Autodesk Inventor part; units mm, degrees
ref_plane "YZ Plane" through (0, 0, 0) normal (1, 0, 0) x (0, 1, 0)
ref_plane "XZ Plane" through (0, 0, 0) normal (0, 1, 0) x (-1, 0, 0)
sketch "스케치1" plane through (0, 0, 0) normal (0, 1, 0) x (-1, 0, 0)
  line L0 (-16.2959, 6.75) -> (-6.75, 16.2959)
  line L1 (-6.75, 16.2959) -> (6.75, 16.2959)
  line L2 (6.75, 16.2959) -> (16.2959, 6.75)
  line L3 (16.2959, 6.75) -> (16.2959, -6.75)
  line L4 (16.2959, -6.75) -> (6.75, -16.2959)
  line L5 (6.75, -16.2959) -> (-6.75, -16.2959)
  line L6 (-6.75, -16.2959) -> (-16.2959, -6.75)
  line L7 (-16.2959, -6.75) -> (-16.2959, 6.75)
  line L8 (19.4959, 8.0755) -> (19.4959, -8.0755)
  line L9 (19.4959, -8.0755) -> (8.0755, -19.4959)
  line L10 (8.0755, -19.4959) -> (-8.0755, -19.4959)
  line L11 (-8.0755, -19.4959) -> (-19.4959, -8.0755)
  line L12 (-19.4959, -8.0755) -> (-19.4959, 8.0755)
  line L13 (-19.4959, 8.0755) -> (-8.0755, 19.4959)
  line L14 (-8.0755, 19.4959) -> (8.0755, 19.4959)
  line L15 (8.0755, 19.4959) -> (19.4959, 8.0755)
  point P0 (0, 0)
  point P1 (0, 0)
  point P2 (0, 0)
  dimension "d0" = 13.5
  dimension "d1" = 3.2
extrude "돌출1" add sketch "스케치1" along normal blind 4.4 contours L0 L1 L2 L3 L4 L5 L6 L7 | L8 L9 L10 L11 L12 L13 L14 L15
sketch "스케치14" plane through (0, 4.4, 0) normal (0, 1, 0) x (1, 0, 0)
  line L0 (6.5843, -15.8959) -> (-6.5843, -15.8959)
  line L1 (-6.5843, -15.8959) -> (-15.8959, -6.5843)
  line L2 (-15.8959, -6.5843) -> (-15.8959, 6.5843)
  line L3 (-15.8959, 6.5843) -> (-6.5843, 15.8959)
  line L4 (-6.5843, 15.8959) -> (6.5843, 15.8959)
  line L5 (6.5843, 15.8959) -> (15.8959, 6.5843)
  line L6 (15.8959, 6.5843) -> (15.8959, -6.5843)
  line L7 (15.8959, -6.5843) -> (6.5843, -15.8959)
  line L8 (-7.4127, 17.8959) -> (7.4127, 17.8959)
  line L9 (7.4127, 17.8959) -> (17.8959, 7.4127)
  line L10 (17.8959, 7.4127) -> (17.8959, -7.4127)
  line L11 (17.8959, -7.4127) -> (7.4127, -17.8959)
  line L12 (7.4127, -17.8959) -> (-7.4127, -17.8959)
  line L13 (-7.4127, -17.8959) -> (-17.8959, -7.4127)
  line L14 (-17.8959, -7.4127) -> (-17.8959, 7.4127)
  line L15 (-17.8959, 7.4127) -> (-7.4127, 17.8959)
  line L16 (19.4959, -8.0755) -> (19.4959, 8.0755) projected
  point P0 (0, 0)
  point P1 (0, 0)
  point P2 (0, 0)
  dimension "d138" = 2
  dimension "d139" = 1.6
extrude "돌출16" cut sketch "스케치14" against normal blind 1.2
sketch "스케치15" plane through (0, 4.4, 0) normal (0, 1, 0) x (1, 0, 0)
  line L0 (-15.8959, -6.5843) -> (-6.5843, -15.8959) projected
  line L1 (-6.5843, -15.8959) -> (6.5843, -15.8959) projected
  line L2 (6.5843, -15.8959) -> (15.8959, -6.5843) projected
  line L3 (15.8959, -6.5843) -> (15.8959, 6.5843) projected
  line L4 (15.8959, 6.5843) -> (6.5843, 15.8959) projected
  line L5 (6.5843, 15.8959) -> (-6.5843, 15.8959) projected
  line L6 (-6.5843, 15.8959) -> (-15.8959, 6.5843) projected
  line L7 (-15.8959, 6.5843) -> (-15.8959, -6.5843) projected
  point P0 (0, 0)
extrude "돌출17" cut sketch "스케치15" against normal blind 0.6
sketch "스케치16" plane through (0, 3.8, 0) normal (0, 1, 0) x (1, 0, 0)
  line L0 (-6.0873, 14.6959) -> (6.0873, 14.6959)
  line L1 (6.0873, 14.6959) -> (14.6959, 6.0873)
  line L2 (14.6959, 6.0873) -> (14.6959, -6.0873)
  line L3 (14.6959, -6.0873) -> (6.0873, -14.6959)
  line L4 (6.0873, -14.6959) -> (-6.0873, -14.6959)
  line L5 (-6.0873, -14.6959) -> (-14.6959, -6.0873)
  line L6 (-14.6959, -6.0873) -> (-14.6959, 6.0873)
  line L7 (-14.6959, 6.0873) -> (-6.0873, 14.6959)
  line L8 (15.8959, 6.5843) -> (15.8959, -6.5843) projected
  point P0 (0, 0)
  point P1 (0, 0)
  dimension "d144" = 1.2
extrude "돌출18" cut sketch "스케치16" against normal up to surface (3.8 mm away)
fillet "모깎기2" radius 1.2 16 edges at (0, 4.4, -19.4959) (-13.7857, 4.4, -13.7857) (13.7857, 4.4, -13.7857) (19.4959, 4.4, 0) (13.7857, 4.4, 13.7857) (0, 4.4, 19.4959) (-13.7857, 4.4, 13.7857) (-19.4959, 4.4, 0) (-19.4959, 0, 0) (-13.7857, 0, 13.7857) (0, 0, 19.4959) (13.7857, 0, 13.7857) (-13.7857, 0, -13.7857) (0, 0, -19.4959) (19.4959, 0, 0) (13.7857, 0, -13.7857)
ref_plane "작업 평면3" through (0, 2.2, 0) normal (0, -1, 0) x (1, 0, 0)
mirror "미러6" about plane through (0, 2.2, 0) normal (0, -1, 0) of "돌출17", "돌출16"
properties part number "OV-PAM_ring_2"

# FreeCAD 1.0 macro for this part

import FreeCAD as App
import Part
import Sketcher
from FreeCAD import Vector


def edges_at(feature, points):
    """Names of the edges that pass closest to the given points."""
    edges = feature.Shape.Edges
    near = lambda p: min(range(len(edges)), key=lambda i: edges[i].distToShape(Part.Vertex(*p))[0])
    return sorted({f"Edge{near(p) + 1}" for p in points})


def add_polygon(sketch, points):
    """Adds a closed chain of lines whose ends are joined by coincident constraints."""
    first, n = sketch.GeometryCount, len(points)
    for a, b in zip(points, points[1:] + points[:1]):
        sketch.addGeometry(Part.LineSegment(App.Vector(*a, 0), App.Vector(*b, 0)), False)
    for i in range(n):
        sketch.addConstraint(Sketcher.Constraint("Coincident", first + i, 2, first + (i + 1) % n, 1))

doc = App.newDocument("Part")
params = doc.addObject("Spreadsheet::Sheet", "Params")
for row, (alias, value) in enumerate([
    ("pad1_length", "4.4 mm"),
    ("pocket1_length", "1.2 mm"),
    ("pocket2_length", "0.6 mm"),
    ("pocket3_length", "3.8 mm"),
    ("fillet_radius", "1.2 mm"),
], start=1):
    params.set(f"A{row}", alias)
    params.set(f"B{row}", "=" + value)
    params.setAlias(f"B{row}", alias)

body = doc.addObject("PartDesign::Body", "Body")

# Sketch on XZ plane
sketch1 = doc.addObject("Sketcher::SketchObject", "Sketch")
body.addObject(sketch1)
sketch1.AttachmentSupport = (doc.XZ_Plane, [""])
sketch1.MapMode = "FlatFace"
add_polygon(sketch1, [(-19.4959, -8.0755), (-19.4959, 8.0755), (-8.0755, 19.4959), (8.0755, 19.4959), (19.4959, 8.0755), (19.4959, -8.0755), (8.0755, -19.4959), (-8.0755, -19.4959)])  # lines 0-7
sketch1.addConstraint([
    Sketcher.Constraint("Vertical", 0),
    Sketcher.Constraint("Horizontal", 2),
    Sketcher.Constraint("Vertical", 4),
    Sketcher.Constraint("Horizontal", 6),
    Sketcher.Constraint("Symmetric", 0, 2, 4, 2, -1, 1),
    Sketcher.Constraint("Symmetric", 1, 2, 5, 2, -1, 1),
    Sketcher.Constraint("Perpendicular", 1, 3),
    Sketcher.Constraint("Perpendicular", 5, 7),
    Sketcher.Constraint("Horizontal", 0, 2, 3, 2),
    Sketcher.Constraint("Horizontal", 4, 2, 7, 2),
    Sketcher.Constraint("Vertical", 2, 2, 5, 2),
    Sketcher.Constraint("Equal", 6, 0),
    Sketcher.Constraint("DistanceX", 2, 1, 2, 2, 16.151),
    Sketcher.Constraint("Distance", 1, 16.151),
])
pad1 = doc.addObject("PartDesign::Pad", "Pad")
body.addObject(pad1)
pad1.Profile = sketch1
pad1.setExpression("Length", "Params.pad1_length")
pad1.Reversed = True

# Sketch on XZ plane
sketch2 = doc.addObject("Sketcher::SketchObject", "Sketch001")
body.addObject(sketch2)
sketch2.AttachmentSupport = (doc.XZ_Plane, [""])
sketch2.MapMode = "FlatFace"
sketch2.AttachmentOffset = App.Placement(Vector(0, 0, -4.4), App.Rotation())
add_polygon(sketch2, [(7.4127, -17.8959), (-7.4127, -17.8959), (-17.8959, -7.4127), (-17.8959, 7.4127), (-7.4127, 17.8959), (7.4127, 17.8959), (17.8959, 7.4127), (17.8959, -7.4127)])  # lines 0-7
add_polygon(sketch2, [(15.8959, 6.5843), (6.5843, 15.8959), (-6.5843, 15.8959), (-15.8959, 6.5843), (-15.8959, -6.5843), (-6.5843, -15.8959), (6.5843, -15.8959), (15.8959, -6.5843)])  # lines 8-15
sketch2.addConstraint([
    Sketcher.Constraint("Horizontal", 0),
    Sketcher.Constraint("Vertical", 2),
    Sketcher.Constraint("Horizontal", 4),
    Sketcher.Constraint("Vertical", 6),
    Sketcher.Constraint("Horizontal", 9),
    Sketcher.Constraint("Vertical", 11),
    Sketcher.Constraint("Horizontal", 13),
    Sketcher.Constraint("Vertical", 15),
    Sketcher.Constraint("Symmetric", 0, 2, 4, 2, -1, 1),
    Sketcher.Constraint("Symmetric", 1, 2, 5, 2, -1, 1),
    Sketcher.Constraint("Symmetric", 8, 2, 12, 2, -1, 1),
    Sketcher.Constraint("Symmetric", 10, 2, 14, 2, -1, 1),
    Sketcher.Constraint("Perpendicular", 1, 3),
    Sketcher.Constraint("Perpendicular", 5, 7),
    Sketcher.Constraint("Perpendicular", 7, 8),
    Sketcher.Constraint("Perpendicular", 8, 10),
    Sketcher.Constraint("Perpendicular", 10, 12),
    Sketcher.Constraint("Perpendicular", 12, 14),
    Sketcher.Constraint("Horizontal", 2, 2, 5, 2),
    Sketcher.Constraint("Horizontal", 1, 2, 6, 2),
    Sketcher.Constraint("Horizontal", 11, 2, 14, 2),
    Sketcher.Constraint("Vertical", 0, 2, 3, 2),
    Sketcher.Constraint("Equal", 4, 2),
    Sketcher.Constraint("Equal", 13, 11),
    Sketcher.Constraint("DistanceY", 8, 2, 4, 2, 2.0),
    Sketcher.Constraint("DistanceX", 0, 2, 0, 1, 14.8254),
    Sketcher.Constraint("DistanceX", 9, 2, 9, 1, 13.1686),
    Sketcher.Constraint("DistanceY", 0, 2, -1, 1, 17.896),
])
pocket1 = doc.addObject("PartDesign::Pocket", "Pocket")
body.addObject(pocket1)
pocket1.Profile = sketch2
pocket1.setExpression("Length", "Params.pocket1_length")
pocket1.Reversed = True

# Sketch on XZ plane
sketch3 = doc.addObject("Sketcher::SketchObject", "Sketch002")
body.addObject(sketch3)
sketch3.AttachmentSupport = (doc.XZ_Plane, [""])
sketch3.MapMode = "FlatFace"
sketch3.AttachmentOffset = App.Placement(Vector(0, 0, -4.4), App.Rotation())
add_polygon(sketch3, [(-15.8959, -6.5843), (-15.8959, 6.5843), (-6.5843, 15.8959), (6.5843, 15.8959), (15.8959, 6.5843), (15.8959, -6.5843), (6.5843, -15.8959), (-6.5843, -15.8959)])  # lines 0-7
sketch3.addConstraint([
    Sketcher.Constraint("Vertical", 0),
    Sketcher.Constraint("Horizontal", 2),
    Sketcher.Constraint("Vertical", 4),
    Sketcher.Constraint("Horizontal", 6),
    Sketcher.Constraint("Symmetric", 0, 2, 4, 2, -1, 1),
    Sketcher.Constraint("Symmetric", 1, 2, 5, 2, -1, 1),
    Sketcher.Constraint("Perpendicular", 1, 3),
    Sketcher.Constraint("Perpendicular", 5, 7),
    Sketcher.Constraint("Horizontal", 0, 2, 3, 2),
    Sketcher.Constraint("Horizontal", 4, 2, 7, 2),
    Sketcher.Constraint("Vertical", 2, 2, 5, 2),
    Sketcher.Constraint("Equal", 6, 0),
    Sketcher.Constraint("DistanceX", 2, 1, 2, 2, 13.1686),
    Sketcher.Constraint("DistanceX", 0, 2, -1, 1, 15.896),
])
pocket2 = doc.addObject("PartDesign::Pocket", "Pocket001")
body.addObject(pocket2)
pocket2.Profile = sketch3
pocket2.setExpression("Length", "Params.pocket2_length")
pocket2.Reversed = True

# Sketch on XZ plane
sketch4 = doc.addObject("Sketcher::SketchObject", "Sketch003")
body.addObject(sketch4)
sketch4.AttachmentSupport = (doc.XZ_Plane, [""])
sketch4.MapMode = "FlatFace"
sketch4.AttachmentOffset = App.Placement(Vector(0, 0, -3.8), App.Rotation())
add_polygon(sketch4, [(6.0873, -14.6959), (-6.0873, -14.6959), (-14.6959, -6.0873), (-14.6959, 6.0873), (-6.0873, 14.6959), (6.0873, 14.6959), (14.6959, 6.0873), (14.6959, -6.0873)])  # lines 0-7
sketch4.addConstraint([
    Sketcher.Constraint("Horizontal", 0),
    Sketcher.Constraint("Vertical", 2),
    Sketcher.Constraint("Horizontal", 4),
    Sketcher.Constraint("Vertical", 6),
    Sketcher.Constraint("Symmetric", 0, 2, 4, 2, -1, 1),
    Sketcher.Constraint("Symmetric", 1, 2, 5, 2, -1, 1),
    Sketcher.Constraint("Perpendicular", 1, 3),
    Sketcher.Constraint("Perpendicular", 5, 7),
    Sketcher.Constraint("Horizontal", 2, 2, 5, 2),
    Sketcher.Constraint("Horizontal", 1, 2, 6, 2),
    Sketcher.Constraint("Vertical", 0, 2, 3, 2),
    Sketcher.Constraint("Equal", 4, 2),
    Sketcher.Constraint("DistanceX", 0, 2, 0, 1, 12.1746),
    Sketcher.Constraint("DistanceY", 0, 2, -1, 1, 14.696),
])
pocket3 = doc.addObject("PartDesign::Pocket", "Pocket002")
body.addObject(pocket3)
pocket3.Profile = sketch4
pocket3.setExpression("Length", "Params.pocket3_length")
pocket3.Reversed = True
doc.recompute()

fillet = doc.addObject("PartDesign::Fillet", "Fillet")
body.addObject(fillet)
fillet.Base = (pocket3, edges_at(pocket3, [
    (0, 4.4, -19.496),
    (-13.786, 4.4, -13.786),
    (13.786, 4.4, -13.786),
    (19.496, 4.4, 0),
    (13.786, 4.4, 13.786),
    (0, 4.4, 19.496),
    (-13.786, 4.4, 13.786),
    (-19.496, 4.4, 0),
    (-19.496, 0, 0),
    (-13.786, 0, 13.786),
    (0, 0, 19.496),
    (13.786, 0, 13.786),
    (-13.786, 0, -13.786),
    (0, 0, -19.496),
    (19.496, 0, 0),
    (13.786, 0, -13.786),
]))
fillet.setExpression("Radius", "Params.fillet_radius")
doc.recompute()

datumplane = doc.addObject("PartDesign::Plane", "DatumPlane")
body.addObject(datumplane)
datumplane.AttachmentSupport = (doc.XZ_Plane, [""])
datumplane.MapMode = "FlatFace"
datumplane.AttachmentOffset = App.Placement(Vector(0, 0, -2.2), App.Rotation())
mirrored = doc.addObject("PartDesign::Mirrored", "Mirrored")
body.addObject(mirrored)
mirrored.Originals = [pocket2, pocket1]
mirrored.MirrorPlane = (datumplane, [""])
body.Tip = mirrored

doc.recompute()
